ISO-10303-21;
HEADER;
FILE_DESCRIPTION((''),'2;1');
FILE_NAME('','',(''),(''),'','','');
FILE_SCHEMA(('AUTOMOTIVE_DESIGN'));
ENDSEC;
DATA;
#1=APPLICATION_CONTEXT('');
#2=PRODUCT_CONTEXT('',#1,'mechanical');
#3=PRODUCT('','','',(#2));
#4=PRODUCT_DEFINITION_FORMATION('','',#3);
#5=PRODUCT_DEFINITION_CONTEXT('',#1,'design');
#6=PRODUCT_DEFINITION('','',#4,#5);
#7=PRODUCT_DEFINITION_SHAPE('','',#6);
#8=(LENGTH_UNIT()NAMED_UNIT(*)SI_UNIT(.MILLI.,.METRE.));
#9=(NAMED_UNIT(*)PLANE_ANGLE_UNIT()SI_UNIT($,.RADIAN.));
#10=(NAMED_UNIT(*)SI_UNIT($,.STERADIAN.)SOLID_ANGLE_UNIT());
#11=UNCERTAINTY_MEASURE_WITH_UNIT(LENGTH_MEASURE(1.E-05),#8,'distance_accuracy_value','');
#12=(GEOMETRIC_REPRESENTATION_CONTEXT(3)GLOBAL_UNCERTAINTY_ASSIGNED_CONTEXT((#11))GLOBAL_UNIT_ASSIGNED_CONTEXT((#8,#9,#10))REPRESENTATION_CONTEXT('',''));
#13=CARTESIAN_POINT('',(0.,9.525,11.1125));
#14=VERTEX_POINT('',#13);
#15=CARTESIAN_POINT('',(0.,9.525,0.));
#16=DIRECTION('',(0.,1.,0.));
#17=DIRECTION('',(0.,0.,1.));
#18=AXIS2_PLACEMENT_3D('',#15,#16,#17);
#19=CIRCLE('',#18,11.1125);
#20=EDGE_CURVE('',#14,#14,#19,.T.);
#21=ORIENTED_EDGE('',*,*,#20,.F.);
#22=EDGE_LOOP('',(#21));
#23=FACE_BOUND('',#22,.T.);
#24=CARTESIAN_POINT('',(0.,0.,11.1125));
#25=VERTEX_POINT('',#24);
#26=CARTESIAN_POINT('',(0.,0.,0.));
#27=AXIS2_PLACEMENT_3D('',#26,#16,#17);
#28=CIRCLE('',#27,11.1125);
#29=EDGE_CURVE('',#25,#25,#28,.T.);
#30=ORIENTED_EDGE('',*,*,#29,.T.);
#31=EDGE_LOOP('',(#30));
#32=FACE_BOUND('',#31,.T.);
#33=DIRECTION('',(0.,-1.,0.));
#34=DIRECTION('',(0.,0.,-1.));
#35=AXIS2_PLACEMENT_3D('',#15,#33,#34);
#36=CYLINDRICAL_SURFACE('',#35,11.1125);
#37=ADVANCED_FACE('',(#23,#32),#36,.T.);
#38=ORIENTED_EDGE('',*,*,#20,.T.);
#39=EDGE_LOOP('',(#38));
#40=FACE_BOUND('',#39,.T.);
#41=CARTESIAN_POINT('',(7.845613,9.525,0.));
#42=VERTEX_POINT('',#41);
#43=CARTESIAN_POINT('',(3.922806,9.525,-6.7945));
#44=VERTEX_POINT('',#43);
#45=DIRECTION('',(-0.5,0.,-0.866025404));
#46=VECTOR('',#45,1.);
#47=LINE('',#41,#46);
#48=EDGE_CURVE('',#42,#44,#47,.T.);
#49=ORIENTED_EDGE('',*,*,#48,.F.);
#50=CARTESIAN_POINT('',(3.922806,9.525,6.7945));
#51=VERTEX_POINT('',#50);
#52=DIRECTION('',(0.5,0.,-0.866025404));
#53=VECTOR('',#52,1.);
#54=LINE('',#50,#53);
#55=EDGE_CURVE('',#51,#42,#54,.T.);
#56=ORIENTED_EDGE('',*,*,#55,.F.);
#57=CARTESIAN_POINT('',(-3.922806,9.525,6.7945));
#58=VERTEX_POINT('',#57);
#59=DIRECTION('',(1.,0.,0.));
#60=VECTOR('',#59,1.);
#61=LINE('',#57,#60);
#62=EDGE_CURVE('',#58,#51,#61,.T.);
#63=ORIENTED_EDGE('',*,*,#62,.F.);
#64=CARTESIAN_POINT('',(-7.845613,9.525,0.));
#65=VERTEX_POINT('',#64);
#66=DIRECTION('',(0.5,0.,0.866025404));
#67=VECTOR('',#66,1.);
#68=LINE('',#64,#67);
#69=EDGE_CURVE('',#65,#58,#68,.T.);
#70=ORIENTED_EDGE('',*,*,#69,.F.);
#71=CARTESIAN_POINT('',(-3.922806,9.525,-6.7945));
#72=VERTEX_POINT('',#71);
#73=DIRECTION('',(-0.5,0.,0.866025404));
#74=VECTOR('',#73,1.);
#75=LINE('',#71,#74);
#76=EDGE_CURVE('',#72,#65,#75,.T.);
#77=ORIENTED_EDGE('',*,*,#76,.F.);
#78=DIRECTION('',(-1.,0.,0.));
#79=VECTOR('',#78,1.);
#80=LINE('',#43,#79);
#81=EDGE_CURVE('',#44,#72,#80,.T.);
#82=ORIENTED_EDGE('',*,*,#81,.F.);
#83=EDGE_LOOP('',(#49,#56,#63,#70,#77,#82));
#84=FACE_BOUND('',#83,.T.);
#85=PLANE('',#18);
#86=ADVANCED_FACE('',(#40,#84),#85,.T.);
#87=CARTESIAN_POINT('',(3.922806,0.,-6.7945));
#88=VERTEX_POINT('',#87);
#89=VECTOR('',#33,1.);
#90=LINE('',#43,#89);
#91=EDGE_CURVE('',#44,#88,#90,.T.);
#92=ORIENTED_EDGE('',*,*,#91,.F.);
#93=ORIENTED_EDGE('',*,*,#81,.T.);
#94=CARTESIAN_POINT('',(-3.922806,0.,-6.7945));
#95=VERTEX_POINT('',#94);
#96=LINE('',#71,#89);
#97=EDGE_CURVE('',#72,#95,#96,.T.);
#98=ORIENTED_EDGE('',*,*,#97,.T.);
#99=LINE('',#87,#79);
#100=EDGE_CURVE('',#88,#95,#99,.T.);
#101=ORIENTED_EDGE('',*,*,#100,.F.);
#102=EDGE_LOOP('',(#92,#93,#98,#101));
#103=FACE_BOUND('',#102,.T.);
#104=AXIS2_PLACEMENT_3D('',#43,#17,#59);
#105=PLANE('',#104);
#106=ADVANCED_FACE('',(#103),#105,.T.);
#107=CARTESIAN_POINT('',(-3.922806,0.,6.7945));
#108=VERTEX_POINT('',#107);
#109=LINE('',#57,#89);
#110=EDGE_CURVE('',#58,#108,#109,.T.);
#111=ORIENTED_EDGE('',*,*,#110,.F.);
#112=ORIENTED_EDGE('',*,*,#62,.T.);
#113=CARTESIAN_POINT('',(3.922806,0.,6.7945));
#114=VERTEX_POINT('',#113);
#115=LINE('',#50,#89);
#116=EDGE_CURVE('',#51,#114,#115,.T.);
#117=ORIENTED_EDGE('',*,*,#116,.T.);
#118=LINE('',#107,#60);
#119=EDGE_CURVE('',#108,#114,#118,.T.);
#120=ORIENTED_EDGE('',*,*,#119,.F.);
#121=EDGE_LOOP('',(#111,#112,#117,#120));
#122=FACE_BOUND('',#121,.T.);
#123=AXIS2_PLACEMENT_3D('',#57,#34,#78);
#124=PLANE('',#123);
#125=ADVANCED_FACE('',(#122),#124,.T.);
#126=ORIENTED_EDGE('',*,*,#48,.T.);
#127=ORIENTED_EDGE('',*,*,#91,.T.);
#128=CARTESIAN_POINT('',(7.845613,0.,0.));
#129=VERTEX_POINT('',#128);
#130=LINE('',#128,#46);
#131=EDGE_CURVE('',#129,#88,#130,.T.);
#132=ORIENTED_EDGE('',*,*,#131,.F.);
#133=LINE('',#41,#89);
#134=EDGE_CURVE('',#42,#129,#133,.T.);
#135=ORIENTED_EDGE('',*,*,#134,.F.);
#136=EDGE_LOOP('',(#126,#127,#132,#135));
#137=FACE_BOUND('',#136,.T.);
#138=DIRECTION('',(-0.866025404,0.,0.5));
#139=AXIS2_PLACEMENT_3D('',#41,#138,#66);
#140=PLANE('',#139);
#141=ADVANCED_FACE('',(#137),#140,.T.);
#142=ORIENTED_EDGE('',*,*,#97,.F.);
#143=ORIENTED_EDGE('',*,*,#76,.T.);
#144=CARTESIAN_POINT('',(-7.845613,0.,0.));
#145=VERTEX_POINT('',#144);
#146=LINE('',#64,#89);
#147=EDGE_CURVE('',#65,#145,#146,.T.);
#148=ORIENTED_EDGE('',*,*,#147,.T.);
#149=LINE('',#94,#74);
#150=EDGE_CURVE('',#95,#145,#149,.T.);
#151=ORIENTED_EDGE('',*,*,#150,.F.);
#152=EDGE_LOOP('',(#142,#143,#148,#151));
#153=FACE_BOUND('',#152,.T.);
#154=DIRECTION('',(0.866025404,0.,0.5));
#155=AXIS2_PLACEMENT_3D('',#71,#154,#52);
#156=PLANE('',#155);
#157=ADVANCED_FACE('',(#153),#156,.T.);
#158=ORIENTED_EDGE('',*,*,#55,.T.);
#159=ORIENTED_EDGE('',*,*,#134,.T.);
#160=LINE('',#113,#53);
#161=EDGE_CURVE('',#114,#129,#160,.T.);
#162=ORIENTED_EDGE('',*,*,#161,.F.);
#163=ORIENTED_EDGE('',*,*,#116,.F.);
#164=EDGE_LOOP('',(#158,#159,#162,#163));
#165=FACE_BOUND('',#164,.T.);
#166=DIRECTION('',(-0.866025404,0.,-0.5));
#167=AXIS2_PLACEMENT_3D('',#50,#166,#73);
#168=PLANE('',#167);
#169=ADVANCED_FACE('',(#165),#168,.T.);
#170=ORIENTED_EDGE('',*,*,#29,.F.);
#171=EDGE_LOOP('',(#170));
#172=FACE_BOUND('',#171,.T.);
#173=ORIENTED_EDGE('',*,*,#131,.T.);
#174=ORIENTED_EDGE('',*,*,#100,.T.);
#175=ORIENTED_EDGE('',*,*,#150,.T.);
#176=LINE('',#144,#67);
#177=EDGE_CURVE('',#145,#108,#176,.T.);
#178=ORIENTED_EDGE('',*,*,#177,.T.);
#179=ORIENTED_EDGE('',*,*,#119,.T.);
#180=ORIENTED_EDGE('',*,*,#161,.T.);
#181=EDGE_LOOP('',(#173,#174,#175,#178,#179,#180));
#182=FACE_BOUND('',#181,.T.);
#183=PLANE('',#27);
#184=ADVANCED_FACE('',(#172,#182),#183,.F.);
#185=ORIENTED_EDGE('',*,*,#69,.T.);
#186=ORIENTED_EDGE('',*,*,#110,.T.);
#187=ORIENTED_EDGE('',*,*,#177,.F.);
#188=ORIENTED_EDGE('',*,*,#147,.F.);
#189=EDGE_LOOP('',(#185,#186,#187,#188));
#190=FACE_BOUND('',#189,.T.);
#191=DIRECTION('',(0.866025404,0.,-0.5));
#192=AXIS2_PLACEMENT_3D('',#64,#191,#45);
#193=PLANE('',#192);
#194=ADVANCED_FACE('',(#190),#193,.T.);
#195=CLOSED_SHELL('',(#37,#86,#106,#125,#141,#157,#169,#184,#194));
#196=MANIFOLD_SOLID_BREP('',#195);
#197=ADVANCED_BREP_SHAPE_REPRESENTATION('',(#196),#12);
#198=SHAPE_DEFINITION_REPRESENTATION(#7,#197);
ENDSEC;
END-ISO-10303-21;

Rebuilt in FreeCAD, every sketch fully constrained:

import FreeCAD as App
import Part
import Sketcher

V = App.Vector
Q = App.Units.Quantity


def add_polygon(sketch, points):
    """Adds a closed chain of lines whose ends are joined by coincident constraints."""
    first, n = sketch.GeometryCount, len(points)
    for a, b in zip(points, points[1:] + points[:1]):
        sketch.addGeometry(Part.LineSegment(App.Vector(*a, 0), App.Vector(*b, 0)), False)
    for i in range(n):
        sketch.addConstraint(Sketcher.Constraint("Coincident", first + i, 2, first + (i + 1) % n, 1))

doc = App.newDocument("Part")
params = doc.addObject("Spreadsheet::Sheet", "Params")
for row, (alias, value) in enumerate([
    ("sketch1_diameter", "0.875 in"),
    ("pad1_length", "0.375 in"),
], start=1):
    params.set(f"A{row}", alias)
    params.set(f"B{row}", "=" + value)
    params.setAlias(f"B{row}", alias)

body = doc.addObject("PartDesign::Body", "Body")

# Sketch on XZ plane
sketch1 = body.newObject("Sketcher::SketchObject", "Sketch")
sketch1.AttachmentSupport = (doc.getObject("XZ_Plane"), [""])
sketch1.MapMode = "FlatFace"
sketch1.addGeometry(Part.Circle(V(0, 0, 0), V(0, 0, 1), 11.1125), False)  # 0
add_polygon(sketch1, [(3.922806, -6.7945), (7.845613, 0), (3.922806, 6.7945), (-3.922806, 6.7945), (-7.845613, 0), (-3.922806, -6.7945)])  # lines 1-6
sketch1.addConstraint([
    Sketcher.Constraint("Horizontal", 3),
    Sketcher.Constraint("Horizontal", 6),
    Sketcher.Constraint("Coincident", 0, 3, -1, 1),
    Sketcher.Constraint("Symmetric", 1, 2, 4, 2, -1, 1),
    Sketcher.Constraint("Symmetric", 2, 2, 5, 2, -1, 1),
    Sketcher.Constraint("PointOnObject", 1, 2, -1),
    Sketcher.Constraint("Parallel", 1, 4),
    Sketcher.Constraint("Vertical", 3, 2, 5, 2),
    Sketcher.Constraint("Diameter", 0, Q("0.875 in")),
    Sketcher.Constraint("Angle", 1, Q("60 deg")),
    Sketcher.Constraint("DistanceY", 5, 2, 3, 2, Q("0.535 in")),
    Sketcher.Constraint("DistanceX", 3, 2, 3, 1, 7.845613),
])
sketch1.setExpression("Constraints[14]", "Params.sketch1_diameter")
pad1 = body.newObject("PartDesign::Pad", "Pad")
pad1.Profile = sketch1
pad1.setExpression("Length", "Params.pad1_length")
pad1.Reversed = True

doc.recompute()
